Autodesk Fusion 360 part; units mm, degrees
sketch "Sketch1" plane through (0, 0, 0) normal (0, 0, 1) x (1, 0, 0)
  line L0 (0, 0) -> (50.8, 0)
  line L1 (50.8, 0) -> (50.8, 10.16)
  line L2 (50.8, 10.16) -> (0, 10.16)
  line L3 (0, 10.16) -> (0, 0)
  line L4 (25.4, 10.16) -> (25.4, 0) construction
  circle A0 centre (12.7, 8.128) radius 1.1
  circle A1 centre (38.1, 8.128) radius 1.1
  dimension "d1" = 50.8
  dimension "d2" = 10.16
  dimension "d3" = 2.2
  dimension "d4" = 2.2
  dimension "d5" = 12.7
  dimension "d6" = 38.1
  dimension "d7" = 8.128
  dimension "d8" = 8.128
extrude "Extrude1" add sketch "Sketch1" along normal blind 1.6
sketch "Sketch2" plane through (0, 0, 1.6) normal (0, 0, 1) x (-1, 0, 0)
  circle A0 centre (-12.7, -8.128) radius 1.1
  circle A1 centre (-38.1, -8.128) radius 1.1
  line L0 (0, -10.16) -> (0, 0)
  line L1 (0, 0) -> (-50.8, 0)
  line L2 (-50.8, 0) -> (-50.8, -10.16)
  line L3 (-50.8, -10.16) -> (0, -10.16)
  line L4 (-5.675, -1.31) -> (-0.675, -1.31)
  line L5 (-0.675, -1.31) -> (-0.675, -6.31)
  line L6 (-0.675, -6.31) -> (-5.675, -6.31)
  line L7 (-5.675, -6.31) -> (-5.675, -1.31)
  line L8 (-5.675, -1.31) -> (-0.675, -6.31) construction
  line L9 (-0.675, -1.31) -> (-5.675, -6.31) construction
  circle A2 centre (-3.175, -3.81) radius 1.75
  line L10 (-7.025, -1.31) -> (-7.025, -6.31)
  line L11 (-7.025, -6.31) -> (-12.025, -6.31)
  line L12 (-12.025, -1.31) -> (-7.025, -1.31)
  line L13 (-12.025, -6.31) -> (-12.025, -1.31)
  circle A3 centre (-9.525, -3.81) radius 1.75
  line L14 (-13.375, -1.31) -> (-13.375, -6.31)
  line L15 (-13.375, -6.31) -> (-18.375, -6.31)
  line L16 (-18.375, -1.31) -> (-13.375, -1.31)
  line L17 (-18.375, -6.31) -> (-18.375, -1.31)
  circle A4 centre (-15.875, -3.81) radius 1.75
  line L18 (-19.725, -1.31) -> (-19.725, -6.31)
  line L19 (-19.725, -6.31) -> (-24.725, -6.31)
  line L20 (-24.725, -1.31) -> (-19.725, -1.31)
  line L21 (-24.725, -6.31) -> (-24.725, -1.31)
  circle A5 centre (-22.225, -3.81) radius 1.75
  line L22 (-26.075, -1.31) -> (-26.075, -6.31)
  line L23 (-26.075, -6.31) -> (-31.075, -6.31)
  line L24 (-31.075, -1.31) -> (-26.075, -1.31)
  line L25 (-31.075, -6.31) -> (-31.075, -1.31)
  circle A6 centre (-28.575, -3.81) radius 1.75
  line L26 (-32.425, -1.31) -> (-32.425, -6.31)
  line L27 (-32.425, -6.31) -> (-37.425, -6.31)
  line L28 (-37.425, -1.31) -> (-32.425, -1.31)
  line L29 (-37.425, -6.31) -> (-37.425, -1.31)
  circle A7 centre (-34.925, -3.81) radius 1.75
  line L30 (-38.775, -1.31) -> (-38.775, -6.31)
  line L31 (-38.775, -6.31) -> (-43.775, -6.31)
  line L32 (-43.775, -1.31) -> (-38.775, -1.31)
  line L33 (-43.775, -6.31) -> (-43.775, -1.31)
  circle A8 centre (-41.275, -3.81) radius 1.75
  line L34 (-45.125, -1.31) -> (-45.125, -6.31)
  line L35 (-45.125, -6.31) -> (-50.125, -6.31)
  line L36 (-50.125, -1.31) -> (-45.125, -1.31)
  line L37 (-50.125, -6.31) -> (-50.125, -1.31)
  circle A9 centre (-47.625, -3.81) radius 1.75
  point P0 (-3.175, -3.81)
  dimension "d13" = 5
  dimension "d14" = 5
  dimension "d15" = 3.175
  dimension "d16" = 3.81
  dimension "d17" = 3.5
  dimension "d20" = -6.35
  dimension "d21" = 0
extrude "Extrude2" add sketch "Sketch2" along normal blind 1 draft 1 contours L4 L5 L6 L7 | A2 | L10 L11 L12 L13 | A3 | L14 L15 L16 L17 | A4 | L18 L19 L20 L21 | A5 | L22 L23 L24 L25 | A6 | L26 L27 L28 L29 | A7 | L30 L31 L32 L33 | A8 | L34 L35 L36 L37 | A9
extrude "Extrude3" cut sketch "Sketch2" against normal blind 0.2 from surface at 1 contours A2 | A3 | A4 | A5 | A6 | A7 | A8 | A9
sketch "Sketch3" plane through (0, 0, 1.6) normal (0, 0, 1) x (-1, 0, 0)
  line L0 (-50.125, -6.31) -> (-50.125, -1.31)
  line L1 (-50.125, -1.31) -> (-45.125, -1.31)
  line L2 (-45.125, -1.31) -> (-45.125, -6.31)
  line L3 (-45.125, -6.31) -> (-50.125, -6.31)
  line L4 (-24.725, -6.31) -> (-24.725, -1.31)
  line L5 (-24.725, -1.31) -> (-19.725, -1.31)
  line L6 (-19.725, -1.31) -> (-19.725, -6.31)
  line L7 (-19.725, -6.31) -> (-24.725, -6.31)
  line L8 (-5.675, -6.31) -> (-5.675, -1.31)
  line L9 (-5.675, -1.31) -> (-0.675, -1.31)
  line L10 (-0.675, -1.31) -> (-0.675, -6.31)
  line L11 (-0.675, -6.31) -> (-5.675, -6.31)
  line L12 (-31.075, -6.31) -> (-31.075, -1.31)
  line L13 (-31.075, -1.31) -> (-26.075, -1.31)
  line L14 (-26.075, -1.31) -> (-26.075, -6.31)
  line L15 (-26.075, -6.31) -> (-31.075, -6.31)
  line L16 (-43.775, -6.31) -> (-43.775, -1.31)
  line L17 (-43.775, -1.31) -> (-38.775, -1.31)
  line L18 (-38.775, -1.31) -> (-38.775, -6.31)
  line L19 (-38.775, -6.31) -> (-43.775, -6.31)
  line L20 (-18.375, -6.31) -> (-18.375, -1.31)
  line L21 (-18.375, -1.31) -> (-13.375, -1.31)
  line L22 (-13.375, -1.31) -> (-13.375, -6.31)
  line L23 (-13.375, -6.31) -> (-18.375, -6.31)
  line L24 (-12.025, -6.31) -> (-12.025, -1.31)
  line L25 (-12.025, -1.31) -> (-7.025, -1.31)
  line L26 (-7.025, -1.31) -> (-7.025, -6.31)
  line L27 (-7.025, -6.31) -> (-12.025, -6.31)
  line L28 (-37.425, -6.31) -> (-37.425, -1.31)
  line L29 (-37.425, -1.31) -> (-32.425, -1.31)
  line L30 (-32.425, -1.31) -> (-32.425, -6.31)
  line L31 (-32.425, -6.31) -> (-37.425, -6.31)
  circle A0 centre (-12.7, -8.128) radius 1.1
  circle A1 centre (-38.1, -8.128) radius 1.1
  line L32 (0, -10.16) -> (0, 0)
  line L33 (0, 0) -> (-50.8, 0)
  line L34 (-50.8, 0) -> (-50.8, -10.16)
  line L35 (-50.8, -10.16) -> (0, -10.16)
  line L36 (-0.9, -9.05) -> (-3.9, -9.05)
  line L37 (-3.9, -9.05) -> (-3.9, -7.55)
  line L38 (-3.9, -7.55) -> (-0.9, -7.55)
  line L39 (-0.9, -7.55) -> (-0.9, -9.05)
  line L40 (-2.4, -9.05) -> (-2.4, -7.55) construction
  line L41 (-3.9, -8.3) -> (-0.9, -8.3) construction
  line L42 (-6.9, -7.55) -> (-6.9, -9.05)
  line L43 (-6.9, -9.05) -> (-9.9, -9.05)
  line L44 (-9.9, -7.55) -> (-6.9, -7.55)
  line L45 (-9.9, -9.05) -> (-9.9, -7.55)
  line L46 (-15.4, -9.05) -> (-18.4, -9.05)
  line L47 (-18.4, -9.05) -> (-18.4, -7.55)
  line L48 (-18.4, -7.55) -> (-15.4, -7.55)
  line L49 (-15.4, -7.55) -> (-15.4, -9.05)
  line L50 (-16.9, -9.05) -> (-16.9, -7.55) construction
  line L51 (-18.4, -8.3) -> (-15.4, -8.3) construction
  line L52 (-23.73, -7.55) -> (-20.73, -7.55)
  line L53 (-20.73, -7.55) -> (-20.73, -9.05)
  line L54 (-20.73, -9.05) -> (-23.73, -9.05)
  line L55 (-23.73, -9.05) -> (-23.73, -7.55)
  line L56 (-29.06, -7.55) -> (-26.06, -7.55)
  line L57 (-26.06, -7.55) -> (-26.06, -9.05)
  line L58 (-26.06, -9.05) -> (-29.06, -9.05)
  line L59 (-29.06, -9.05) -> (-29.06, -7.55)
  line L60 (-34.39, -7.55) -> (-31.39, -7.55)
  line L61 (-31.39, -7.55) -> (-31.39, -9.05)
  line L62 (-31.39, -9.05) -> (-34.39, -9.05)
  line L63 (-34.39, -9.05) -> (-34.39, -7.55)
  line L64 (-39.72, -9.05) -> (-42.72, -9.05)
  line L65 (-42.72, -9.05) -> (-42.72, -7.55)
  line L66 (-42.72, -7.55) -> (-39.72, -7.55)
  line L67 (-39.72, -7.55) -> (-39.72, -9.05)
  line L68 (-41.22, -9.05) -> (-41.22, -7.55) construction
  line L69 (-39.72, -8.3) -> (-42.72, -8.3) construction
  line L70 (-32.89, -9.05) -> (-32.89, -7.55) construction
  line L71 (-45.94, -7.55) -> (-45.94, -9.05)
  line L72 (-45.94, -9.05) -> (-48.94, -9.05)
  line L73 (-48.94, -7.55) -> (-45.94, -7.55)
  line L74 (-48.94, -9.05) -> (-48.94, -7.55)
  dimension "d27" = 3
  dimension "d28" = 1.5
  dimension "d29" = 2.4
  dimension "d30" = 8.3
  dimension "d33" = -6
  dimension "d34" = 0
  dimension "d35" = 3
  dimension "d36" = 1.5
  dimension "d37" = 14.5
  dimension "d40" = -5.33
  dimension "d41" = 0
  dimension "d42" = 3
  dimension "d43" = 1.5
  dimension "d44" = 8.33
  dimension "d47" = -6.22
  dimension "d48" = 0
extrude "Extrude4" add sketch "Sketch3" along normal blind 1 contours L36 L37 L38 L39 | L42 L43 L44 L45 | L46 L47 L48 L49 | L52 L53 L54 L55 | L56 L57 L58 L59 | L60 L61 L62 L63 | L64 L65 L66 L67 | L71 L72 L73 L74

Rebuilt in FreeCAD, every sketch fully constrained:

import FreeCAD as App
import Part
import Sketcher


def add_polygon(sketch, points):
    """Adds a closed chain of lines whose ends are joined by coincident constraints."""
    first, n = sketch.GeometryCount, len(points)
    for a, b in zip(points, points[1:] + points[:1]):
        sketch.addGeometry(Part.LineSegment(App.Vector(*a, 0), App.Vector(*b, 0)), False)
    for i in range(n):
        sketch.addConstraint(Sketcher.Constraint("Coincident", first + i, 2, first + (i + 1) % n, 1))

doc = App.newDocument("Part")
body = doc.addObject("PartDesign::Body", "Body")

# Sketch on XY plane
sketch1 = doc.addObject("Sketcher::SketchObject", "Sketch")
body.addObject(sketch1)
sketch1.AttachmentSupport = (doc.XY_Plane, [""])
sketch1.MapMode = "FlatFace"
add_polygon(sketch1, [(0, 10.16), (0, 0), (50.8, 0), (50.8, 10.16)])  # lines 0-3
sketch1.addGeometry(Part.Circle(App.Vector(12.7, 8.128, 0), App.Vector(0, 0, 1), 1.1), False)  # 4
sketch1.addGeometry(Part.Circle(App.Vector(38.1, 8.128, 0), App.Vector(0, 0, 1), 1.1), False)  # 5
sketch1.addConstraint([
    Sketcher.Constraint("Vertical", 0),
    Sketcher.Constraint("Horizontal", 1),
    Sketcher.Constraint("Vertical", 2),
    Sketcher.Constraint("Horizontal", 3),
    Sketcher.Constraint("Coincident", 0, 2, -1, 1),
    Sketcher.Constraint("Equal", 4, 5),
    Sketcher.Constraint("Horizontal", 4, 3, 5, 3),
    Sketcher.Constraint("Diameter", 4, 2.2),
    Sketcher.Constraint("DistanceX", 1, 1, 1, 2, 50.8),
    Sketcher.Constraint("DistanceY", 0, 2, 0, 1, 10.16),
    Sketcher.Constraint("DistanceX", -1, 1, 4, 3, 12.7),
    Sketcher.Constraint("DistanceX", -1, 1, 5, 3, 38.1),
    Sketcher.Constraint("DistanceY", -1, 1, 4, 3, 8.128),
])
pad1 = doc.addObject("PartDesign::Pad", "Pad")
body.addObject(pad1)
pad1.Profile = sketch1
pad1.Length = 1.6

# Sketch on XY plane
sketch2 = doc.addObject("Sketcher::SketchObject", "Sketch001")
body.addObject(sketch2)
sketch2.AttachmentSupport = (doc.XY_Plane, [""])
sketch2.MapMode = "FlatFace"
sketch2.AttachmentOffset = App.Placement(App.Vector(0, 0, 1.6), App.Rotation())
add_polygon(sketch2, [(0.675, 1.31), (5.675, 1.31), (5.675, 6.31), (0.675, 6.31)])  # lines 0-3
add_polygon(sketch2, [(7.025, 6.31), (7.025, 1.31), (12.025, 1.31), (12.025, 6.31)])  # lines 4-7
add_polygon(sketch2, [(13.375, 6.31), (13.375, 1.31), (18.375, 1.31), (18.375, 6.31)])  # lines 8-11
add_polygon(sketch2, [(19.725, 6.31), (19.725, 1.31), (24.725, 1.31), (24.725, 6.31)])  # lines 12-15
add_polygon(sketch2, [(26.075, 6.31), (26.075, 1.31), (31.075, 1.31), (31.075, 6.31)])  # lines 16-19
add_polygon(sketch2, [(32.425, 6.31), (32.425, 1.31), (37.425, 1.31), (37.425, 6.31)])  # lines 20-23
add_polygon(sketch2, [(38.775, 6.31), (38.775, 1.31), (43.775, 1.31), (43.775, 6.31)])  # lines 24-27
add_polygon(sketch2, [(45.125, 6.31), (45.125, 1.31), (50.125, 1.31), (50.125, 6.31)])  # lines 28-31
sketch2.addConstraint([
    Sketcher.Constraint("Horizontal", 0),
    Sketcher.Constraint("Vertical", 1),
    Sketcher.Constraint("Horizontal", 2),
    Sketcher.Constraint("Vertical", 3),
    Sketcher.Constraint("Vertical", 4),
    Sketcher.Constraint("Horizontal", 5),
    Sketcher.Constraint("Vertical", 6),
    Sketcher.Constraint("Horizontal", 7),
    Sketcher.Constraint("Vertical", 8),
    Sketcher.Constraint("Horizontal", 9),
    Sketcher.Constraint("Vertical", 10),
    Sketcher.Constraint("Horizontal", 11),
    Sketcher.Constraint("Vertical", 12),
    Sketcher.Constraint("Horizontal", 13),
    Sketcher.Constraint("Vertical", 14),
    Sketcher.Constraint("Horizontal", 15),
    Sketcher.Constraint("Vertical", 16),
    Sketcher.Constraint("Horizontal", 17),
    Sketcher.Constraint("Vertical", 18),
    Sketcher.Constraint("Horizontal", 19),
    Sketcher.Constraint("Vertical", 20),
    Sketcher.Constraint("Horizontal", 21),
    Sketcher.Constraint("Vertical", 22),
    Sketcher.Constraint("Horizontal", 23),
    Sketcher.Constraint("Vertical", 24),
    Sketcher.Constraint("Horizontal", 25),
    Sketcher.Constraint("Vertical", 26),
    Sketcher.Constraint("Horizontal", 27),
    Sketcher.Constraint("Vertical", 28),
    Sketcher.Constraint("Horizontal", 29),
    Sketcher.Constraint("Vertical", 30),
    Sketcher.Constraint("Horizontal", 31),
    Sketcher.Constraint("Horizontal", 3, 2, 4, 2),
    Sketcher.Constraint("Horizontal", 2, 2, 6, 2),
    Sketcher.Constraint("Horizontal", 5, 2, 8, 2),
    Sketcher.Constraint("Horizontal", 7, 2, 10, 2),
    Sketcher.Constraint("Horizontal", 9, 2, 12, 2),
    Sketcher.Constraint("Horizontal", 11, 2, 14, 2),
    Sketcher.Constraint("Horizontal", 13, 2, 16, 2),
    Sketcher.Constraint("Horizontal", 15, 2, 18, 2),
    Sketcher.Constraint("Horizontal", 17, 2, 20, 2),
    Sketcher.Constraint("Horizontal", 19, 2, 22, 2),
    Sketcher.Constraint("Horizontal", 21, 2, 24, 2),
    Sketcher.Constraint("Horizontal", 23, 2, 26, 2),
    Sketcher.Constraint("Horizontal", 25, 2, 28, 2),
    Sketcher.Constraint("Horizontal", 27, 2, 30, 2),
    Sketcher.Constraint("Equal", 2, 5),
    Sketcher.Constraint("Equal", 7, 9),
    Sketcher.Constraint("Equal", 11, 13),
    Sketcher.Constraint("Equal", 15, 17),
    Sketcher.Constraint("Equal", 19, 21),
    Sketcher.Constraint("Equal", 23, 25),
    Sketcher.Constraint("Equal", 27, 29),
    Sketcher.Constraint("Equal", 31, 1),
    Sketcher.Constraint("DistanceX", 0, 1, 0, 2, 5.0),
    Sketcher.Constraint("DistanceX", 3, 2, 4, 2, 6.35),
    Sketcher.Constraint("DistanceX", 4, 2, 8, 2, 6.35),
    Sketcher.Constraint("DistanceX", 8, 2, 12, 2, 6.35),
    Sketcher.Constraint("DistanceX", 12, 2, 16, 2, 6.35),
    Sketcher.Constraint("DistanceX", 16, 2, 20, 2, 6.35),
    Sketcher.Constraint("DistanceX", 20, 2, 24, 2, 6.35),
    Sketcher.Constraint("DistanceX", 24, 2, 28, 2, 6.35),
    Sketcher.Constraint("DistanceY", -1, 1, 0, 2, 1.31),
    Sketcher.Constraint("DistanceX", -1, 1, 0, 2, 5.675),
])
pad2 = doc.addObject("PartDesign::Pad", "Pad001")
body.addObject(pad2)
pad2.Profile = sketch2
pad2.Length = 1
pad2.TaperAngle = 1

# Sketch on XY plane
sketch3 = doc.addObject("Sketcher::SketchObject", "Sketch002")
body.addObject(sketch3)
sketch3.AttachmentSupport = (doc.XY_Plane, [""])
sketch3.MapMode = "FlatFace"
sketch3.AttachmentOffset = App.Placement(App.Vector(0, 0, 2.6), App.Rotation())
sketch3.addGeometry([
    Part.Circle(App.Vector(3.175, 3.81, 0), App.Vector(0, 0, 1), 1.75),  # 0
    Part.Circle(App.Vector(9.525, 3.81, 0), App.Vector(0, 0, 1), 1.75),  # 1
    Part.Circle(App.Vector(15.875, 3.81, 0), App.Vector(0, 0, 1), 1.75),  # 2
    Part.Circle(App.Vector(22.225, 3.81, 0), App.Vector(0, 0, 1), 1.75),  # 3
    Part.Circle(App.Vector(28.575, 3.81, 0), App.Vector(0, 0, 1), 1.75),  # 4
    Part.Circle(App.Vector(34.925, 3.81, 0), App.Vector(0, 0, 1), 1.75),  # 5
    Part.Circle(App.Vector(41.275, 3.81, 0), App.Vector(0, 0, 1), 1.75),  # 6
    Part.Circle(App.Vector(47.625, 3.81, 0), App.Vector(0, 0, 1), 1.75),  # 7
], False)
sketch3.addConstraint([
    Sketcher.Constraint("Equal", 0, 1),
    Sketcher.Constraint("Equal", 1, 2),
    Sketcher.Constraint("Equal", 2, 3),
    Sketcher.Constraint("Equal", 3, 4),
    Sketcher.Constraint("Equal", 4, 5),
    Sketcher.Constraint("Equal", 5, 6),
    Sketcher.Constraint("Equal", 6, 7),
    Sketcher.Constraint("Horizontal", 0, 3, 1, 3),
    Sketcher.Constraint("Horizontal", 1, 3, 2, 3),
    Sketcher.Constraint("Horizontal", 2, 3, 3, 3),
    Sketcher.Constraint("Horizontal", 3, 3, 4, 3),
    Sketcher.Constraint("Horizontal", 4, 3, 5, 3),
    Sketcher.Constraint("Horizontal", 5, 3, 6, 3),
    Sketcher.Constraint("Horizontal", 6, 3, 7, 3),
    Sketcher.Constraint("Diameter", 0, 3.5),
    Sketcher.Constraint("DistanceY", -1, 1, 0, 3, 3.81),
    Sketcher.Constraint("DistanceX", 0, 3, 1, 3, 6.35),
    Sketcher.Constraint("DistanceX", 1, 3, 2, 3, 6.35),
    Sketcher.Constraint("DistanceX", 2, 3, 3, 3, 6.35),
    Sketcher.Constraint("DistanceX", 3, 3, 4, 3, 6.35),
    Sketcher.Constraint("DistanceX", 4, 3, 5, 3, 6.35),
    Sketcher.Constraint("DistanceX", 5, 3, 6, 3, 6.35),
    Sketcher.Constraint("DistanceX", 6, 3, 7, 3, 6.35),
    Sketcher.Constraint("DistanceX", -1, 1, 0, 3, 3.175),
])
pocket1 = doc.addObject("PartDesign::Pocket", "Pocket")
body.addObject(pocket1)
pocket1.Profile = sketch3
pocket1.Length = 0.2

# Sketch on XY plane
sketch4 = doc.addObject("Sketcher::SketchObject", "Sketch003")
body.addObject(sketch4)
sketch4.AttachmentSupport = (doc.XY_Plane, [""])
sketch4.MapMode = "FlatFace"
sketch4.AttachmentOffset = App.Placement(App.Vector(0, 0, 1.6), App.Rotation())
add_polygon(sketch4, [(3.9, 9.05), (0.9, 9.05), (0.9, 7.55), (3.9, 7.55)])  # lines 0-3
add_polygon(sketch4, [(6.9, 9.05), (6.9, 7.55), (9.9, 7.55), (9.9, 9.05)])  # lines 4-7
add_polygon(sketch4, [(18.4, 9.05), (15.4, 9.05), (15.4, 7.55), (18.4, 7.55)])  # lines 8-11
add_polygon(sketch4, [(20.73, 7.55), (23.73, 7.55), (23.73, 9.05), (20.73, 9.05)])  # lines 12-15
add_polygon(sketch4, [(26.06, 7.55), (29.06, 7.55), (29.06, 9.05), (26.06, 9.05)])  # lines 16-19
add_polygon(sketch4, [(31.39, 7.55), (34.39, 7.55), (34.39, 9.05), (31.39, 9.05)])  # lines 20-23
add_polygon(sketch4, [(42.72, 9.05), (39.72, 9.05), (39.72, 7.55), (42.72, 7.55)])  # lines 24-27
add_polygon(sketch4, [(45.94, 9.05), (45.94, 7.55), (48.94, 7.55), (48.94, 9.05)])  # lines 28-31
sketch4.addConstraint([
    Sketcher.Constraint("Horizontal", 0),
    Sketcher.Constraint("Vertical", 1),
    Sketcher.Constraint("Horizontal", 2),
    Sketcher.Constraint("Vertical", 3),
    Sketcher.Constraint("Vertical", 4),
    Sketcher.Constraint("Horizontal", 5),
    Sketcher.Constraint("Vertical", 6),
    Sketcher.Constraint("Horizontal", 7),
    Sketcher.Constraint("Horizontal", 8),
    Sketcher.Constraint("Vertical", 9),
    Sketcher.Constraint("Horizontal", 10),
    Sketcher.Constraint("Vertical", 11),
    Sketcher.Constraint("Horizontal", 12),
    Sketcher.Constraint("Vertical", 13),
    Sketcher.Constraint("Horizontal", 14),
    Sketcher.Constraint("Vertical", 15),
    Sketcher.Constraint("Horizontal", 16),
    Sketcher.Constraint("Vertical", 17),
    Sketcher.Constraint("Horizontal", 18),
    Sketcher.Constraint("Vertical", 19),
    Sketcher.Constraint("Horizontal", 20),
    Sketcher.Constraint("Vertical", 21),
    Sketcher.Constraint("Horizontal", 22),
    Sketcher.Constraint("Vertical", 23),
    Sketcher.Constraint("Horizontal", 24),
    Sketcher.Constraint("Vertical", 25),
    Sketcher.Constraint("Horizontal", 26),
    Sketcher.Constraint("Vertical", 27),
    Sketcher.Constraint("Vertical", 28),
    Sketcher.Constraint("Horizontal", 29),
    Sketcher.Constraint("Vertical", 30),
    Sketcher.Constraint("Horizontal", 31),
    Sketcher.Constraint("Horizontal", 2, 2, 4, 2),
    Sketcher.Constraint("Horizontal", 3, 2, 6, 2),
    Sketcher.Constraint("Horizontal", 7, 2, 8, 2),
    Sketcher.Constraint("Horizontal", 5, 2, 9, 2),
    Sketcher.Constraint("Horizontal", 10, 2, 12, 2),
    Sketcher.Constraint("Horizontal", 11, 2, 13, 2),
    Sketcher.Constraint("Horizontal", 15, 2, 16, 2),
    Sketcher.Constraint("Horizontal", 14, 2, 17, 2),
    Sketcher.Constraint("Horizontal", 19, 2, 20, 2),
    Sketcher.Constraint("Horizontal", 18, 2, 21, 2),
    Sketcher.Constraint("Horizontal", 22, 2, 24, 2),
    Sketcher.Constraint("Horizontal", 23, 2, 25, 2),
    Sketcher.Constraint("Horizontal", 26, 2, 28, 2),
    Sketcher.Constraint("Horizontal", 27, 2, 30, 2),
    Sketcher.Constraint("Equal", 2, 5),
    Sketcher.Constraint("Equal", 7, 8),
    Sketcher.Constraint("Equal", 10, 12),
    Sketcher.Constraint("Equal", 14, 16),
    Sketcher.Constraint("Equal", 18, 20),
    Sketcher.Constraint("Equal", 22, 24),
    Sketcher.Constraint("Equal", 26, 29),
    Sketcher.Constraint("DistanceX", 0, 2, 0, 1, 3.0),
    Sketcher.Constraint("DistanceY", 1, 2, 1, 1, 1.5),
    Sketcher.Constraint("DistanceX", 2, 2, 4, 2, 3.0),
    Sketcher.Constraint("DistanceX", 10, 2, 12, 2, 5.33),
    Sketcher.Constraint("DistanceX", 12, 2, 16, 2, 5.33),
    Sketcher.Constraint("DistanceX", 16, 2, 20, 2, 5.33),
    Sketcher.Constraint("DistanceX", 21, 2, 24, 2, 5.33),
    Sketcher.Constraint("DistanceX", 25, 2, 28, 2, 6.22),
    Sketcher.Constraint("DistanceX", -1, 1, 0, 2, 0.9),
    Sketcher.Constraint("DistanceX", -1, 1, 8, 2, 15.4),
    Sketcher.Constraint("DistanceY", -1, 1, 0, 2, 9.05),
])
pad3 = doc.addObject("PartDesign::Pad", "Pad002")
body.addObject(pad3)
pad3.Profile = sketch4
pad3.Length = 1

doc.recompute()
